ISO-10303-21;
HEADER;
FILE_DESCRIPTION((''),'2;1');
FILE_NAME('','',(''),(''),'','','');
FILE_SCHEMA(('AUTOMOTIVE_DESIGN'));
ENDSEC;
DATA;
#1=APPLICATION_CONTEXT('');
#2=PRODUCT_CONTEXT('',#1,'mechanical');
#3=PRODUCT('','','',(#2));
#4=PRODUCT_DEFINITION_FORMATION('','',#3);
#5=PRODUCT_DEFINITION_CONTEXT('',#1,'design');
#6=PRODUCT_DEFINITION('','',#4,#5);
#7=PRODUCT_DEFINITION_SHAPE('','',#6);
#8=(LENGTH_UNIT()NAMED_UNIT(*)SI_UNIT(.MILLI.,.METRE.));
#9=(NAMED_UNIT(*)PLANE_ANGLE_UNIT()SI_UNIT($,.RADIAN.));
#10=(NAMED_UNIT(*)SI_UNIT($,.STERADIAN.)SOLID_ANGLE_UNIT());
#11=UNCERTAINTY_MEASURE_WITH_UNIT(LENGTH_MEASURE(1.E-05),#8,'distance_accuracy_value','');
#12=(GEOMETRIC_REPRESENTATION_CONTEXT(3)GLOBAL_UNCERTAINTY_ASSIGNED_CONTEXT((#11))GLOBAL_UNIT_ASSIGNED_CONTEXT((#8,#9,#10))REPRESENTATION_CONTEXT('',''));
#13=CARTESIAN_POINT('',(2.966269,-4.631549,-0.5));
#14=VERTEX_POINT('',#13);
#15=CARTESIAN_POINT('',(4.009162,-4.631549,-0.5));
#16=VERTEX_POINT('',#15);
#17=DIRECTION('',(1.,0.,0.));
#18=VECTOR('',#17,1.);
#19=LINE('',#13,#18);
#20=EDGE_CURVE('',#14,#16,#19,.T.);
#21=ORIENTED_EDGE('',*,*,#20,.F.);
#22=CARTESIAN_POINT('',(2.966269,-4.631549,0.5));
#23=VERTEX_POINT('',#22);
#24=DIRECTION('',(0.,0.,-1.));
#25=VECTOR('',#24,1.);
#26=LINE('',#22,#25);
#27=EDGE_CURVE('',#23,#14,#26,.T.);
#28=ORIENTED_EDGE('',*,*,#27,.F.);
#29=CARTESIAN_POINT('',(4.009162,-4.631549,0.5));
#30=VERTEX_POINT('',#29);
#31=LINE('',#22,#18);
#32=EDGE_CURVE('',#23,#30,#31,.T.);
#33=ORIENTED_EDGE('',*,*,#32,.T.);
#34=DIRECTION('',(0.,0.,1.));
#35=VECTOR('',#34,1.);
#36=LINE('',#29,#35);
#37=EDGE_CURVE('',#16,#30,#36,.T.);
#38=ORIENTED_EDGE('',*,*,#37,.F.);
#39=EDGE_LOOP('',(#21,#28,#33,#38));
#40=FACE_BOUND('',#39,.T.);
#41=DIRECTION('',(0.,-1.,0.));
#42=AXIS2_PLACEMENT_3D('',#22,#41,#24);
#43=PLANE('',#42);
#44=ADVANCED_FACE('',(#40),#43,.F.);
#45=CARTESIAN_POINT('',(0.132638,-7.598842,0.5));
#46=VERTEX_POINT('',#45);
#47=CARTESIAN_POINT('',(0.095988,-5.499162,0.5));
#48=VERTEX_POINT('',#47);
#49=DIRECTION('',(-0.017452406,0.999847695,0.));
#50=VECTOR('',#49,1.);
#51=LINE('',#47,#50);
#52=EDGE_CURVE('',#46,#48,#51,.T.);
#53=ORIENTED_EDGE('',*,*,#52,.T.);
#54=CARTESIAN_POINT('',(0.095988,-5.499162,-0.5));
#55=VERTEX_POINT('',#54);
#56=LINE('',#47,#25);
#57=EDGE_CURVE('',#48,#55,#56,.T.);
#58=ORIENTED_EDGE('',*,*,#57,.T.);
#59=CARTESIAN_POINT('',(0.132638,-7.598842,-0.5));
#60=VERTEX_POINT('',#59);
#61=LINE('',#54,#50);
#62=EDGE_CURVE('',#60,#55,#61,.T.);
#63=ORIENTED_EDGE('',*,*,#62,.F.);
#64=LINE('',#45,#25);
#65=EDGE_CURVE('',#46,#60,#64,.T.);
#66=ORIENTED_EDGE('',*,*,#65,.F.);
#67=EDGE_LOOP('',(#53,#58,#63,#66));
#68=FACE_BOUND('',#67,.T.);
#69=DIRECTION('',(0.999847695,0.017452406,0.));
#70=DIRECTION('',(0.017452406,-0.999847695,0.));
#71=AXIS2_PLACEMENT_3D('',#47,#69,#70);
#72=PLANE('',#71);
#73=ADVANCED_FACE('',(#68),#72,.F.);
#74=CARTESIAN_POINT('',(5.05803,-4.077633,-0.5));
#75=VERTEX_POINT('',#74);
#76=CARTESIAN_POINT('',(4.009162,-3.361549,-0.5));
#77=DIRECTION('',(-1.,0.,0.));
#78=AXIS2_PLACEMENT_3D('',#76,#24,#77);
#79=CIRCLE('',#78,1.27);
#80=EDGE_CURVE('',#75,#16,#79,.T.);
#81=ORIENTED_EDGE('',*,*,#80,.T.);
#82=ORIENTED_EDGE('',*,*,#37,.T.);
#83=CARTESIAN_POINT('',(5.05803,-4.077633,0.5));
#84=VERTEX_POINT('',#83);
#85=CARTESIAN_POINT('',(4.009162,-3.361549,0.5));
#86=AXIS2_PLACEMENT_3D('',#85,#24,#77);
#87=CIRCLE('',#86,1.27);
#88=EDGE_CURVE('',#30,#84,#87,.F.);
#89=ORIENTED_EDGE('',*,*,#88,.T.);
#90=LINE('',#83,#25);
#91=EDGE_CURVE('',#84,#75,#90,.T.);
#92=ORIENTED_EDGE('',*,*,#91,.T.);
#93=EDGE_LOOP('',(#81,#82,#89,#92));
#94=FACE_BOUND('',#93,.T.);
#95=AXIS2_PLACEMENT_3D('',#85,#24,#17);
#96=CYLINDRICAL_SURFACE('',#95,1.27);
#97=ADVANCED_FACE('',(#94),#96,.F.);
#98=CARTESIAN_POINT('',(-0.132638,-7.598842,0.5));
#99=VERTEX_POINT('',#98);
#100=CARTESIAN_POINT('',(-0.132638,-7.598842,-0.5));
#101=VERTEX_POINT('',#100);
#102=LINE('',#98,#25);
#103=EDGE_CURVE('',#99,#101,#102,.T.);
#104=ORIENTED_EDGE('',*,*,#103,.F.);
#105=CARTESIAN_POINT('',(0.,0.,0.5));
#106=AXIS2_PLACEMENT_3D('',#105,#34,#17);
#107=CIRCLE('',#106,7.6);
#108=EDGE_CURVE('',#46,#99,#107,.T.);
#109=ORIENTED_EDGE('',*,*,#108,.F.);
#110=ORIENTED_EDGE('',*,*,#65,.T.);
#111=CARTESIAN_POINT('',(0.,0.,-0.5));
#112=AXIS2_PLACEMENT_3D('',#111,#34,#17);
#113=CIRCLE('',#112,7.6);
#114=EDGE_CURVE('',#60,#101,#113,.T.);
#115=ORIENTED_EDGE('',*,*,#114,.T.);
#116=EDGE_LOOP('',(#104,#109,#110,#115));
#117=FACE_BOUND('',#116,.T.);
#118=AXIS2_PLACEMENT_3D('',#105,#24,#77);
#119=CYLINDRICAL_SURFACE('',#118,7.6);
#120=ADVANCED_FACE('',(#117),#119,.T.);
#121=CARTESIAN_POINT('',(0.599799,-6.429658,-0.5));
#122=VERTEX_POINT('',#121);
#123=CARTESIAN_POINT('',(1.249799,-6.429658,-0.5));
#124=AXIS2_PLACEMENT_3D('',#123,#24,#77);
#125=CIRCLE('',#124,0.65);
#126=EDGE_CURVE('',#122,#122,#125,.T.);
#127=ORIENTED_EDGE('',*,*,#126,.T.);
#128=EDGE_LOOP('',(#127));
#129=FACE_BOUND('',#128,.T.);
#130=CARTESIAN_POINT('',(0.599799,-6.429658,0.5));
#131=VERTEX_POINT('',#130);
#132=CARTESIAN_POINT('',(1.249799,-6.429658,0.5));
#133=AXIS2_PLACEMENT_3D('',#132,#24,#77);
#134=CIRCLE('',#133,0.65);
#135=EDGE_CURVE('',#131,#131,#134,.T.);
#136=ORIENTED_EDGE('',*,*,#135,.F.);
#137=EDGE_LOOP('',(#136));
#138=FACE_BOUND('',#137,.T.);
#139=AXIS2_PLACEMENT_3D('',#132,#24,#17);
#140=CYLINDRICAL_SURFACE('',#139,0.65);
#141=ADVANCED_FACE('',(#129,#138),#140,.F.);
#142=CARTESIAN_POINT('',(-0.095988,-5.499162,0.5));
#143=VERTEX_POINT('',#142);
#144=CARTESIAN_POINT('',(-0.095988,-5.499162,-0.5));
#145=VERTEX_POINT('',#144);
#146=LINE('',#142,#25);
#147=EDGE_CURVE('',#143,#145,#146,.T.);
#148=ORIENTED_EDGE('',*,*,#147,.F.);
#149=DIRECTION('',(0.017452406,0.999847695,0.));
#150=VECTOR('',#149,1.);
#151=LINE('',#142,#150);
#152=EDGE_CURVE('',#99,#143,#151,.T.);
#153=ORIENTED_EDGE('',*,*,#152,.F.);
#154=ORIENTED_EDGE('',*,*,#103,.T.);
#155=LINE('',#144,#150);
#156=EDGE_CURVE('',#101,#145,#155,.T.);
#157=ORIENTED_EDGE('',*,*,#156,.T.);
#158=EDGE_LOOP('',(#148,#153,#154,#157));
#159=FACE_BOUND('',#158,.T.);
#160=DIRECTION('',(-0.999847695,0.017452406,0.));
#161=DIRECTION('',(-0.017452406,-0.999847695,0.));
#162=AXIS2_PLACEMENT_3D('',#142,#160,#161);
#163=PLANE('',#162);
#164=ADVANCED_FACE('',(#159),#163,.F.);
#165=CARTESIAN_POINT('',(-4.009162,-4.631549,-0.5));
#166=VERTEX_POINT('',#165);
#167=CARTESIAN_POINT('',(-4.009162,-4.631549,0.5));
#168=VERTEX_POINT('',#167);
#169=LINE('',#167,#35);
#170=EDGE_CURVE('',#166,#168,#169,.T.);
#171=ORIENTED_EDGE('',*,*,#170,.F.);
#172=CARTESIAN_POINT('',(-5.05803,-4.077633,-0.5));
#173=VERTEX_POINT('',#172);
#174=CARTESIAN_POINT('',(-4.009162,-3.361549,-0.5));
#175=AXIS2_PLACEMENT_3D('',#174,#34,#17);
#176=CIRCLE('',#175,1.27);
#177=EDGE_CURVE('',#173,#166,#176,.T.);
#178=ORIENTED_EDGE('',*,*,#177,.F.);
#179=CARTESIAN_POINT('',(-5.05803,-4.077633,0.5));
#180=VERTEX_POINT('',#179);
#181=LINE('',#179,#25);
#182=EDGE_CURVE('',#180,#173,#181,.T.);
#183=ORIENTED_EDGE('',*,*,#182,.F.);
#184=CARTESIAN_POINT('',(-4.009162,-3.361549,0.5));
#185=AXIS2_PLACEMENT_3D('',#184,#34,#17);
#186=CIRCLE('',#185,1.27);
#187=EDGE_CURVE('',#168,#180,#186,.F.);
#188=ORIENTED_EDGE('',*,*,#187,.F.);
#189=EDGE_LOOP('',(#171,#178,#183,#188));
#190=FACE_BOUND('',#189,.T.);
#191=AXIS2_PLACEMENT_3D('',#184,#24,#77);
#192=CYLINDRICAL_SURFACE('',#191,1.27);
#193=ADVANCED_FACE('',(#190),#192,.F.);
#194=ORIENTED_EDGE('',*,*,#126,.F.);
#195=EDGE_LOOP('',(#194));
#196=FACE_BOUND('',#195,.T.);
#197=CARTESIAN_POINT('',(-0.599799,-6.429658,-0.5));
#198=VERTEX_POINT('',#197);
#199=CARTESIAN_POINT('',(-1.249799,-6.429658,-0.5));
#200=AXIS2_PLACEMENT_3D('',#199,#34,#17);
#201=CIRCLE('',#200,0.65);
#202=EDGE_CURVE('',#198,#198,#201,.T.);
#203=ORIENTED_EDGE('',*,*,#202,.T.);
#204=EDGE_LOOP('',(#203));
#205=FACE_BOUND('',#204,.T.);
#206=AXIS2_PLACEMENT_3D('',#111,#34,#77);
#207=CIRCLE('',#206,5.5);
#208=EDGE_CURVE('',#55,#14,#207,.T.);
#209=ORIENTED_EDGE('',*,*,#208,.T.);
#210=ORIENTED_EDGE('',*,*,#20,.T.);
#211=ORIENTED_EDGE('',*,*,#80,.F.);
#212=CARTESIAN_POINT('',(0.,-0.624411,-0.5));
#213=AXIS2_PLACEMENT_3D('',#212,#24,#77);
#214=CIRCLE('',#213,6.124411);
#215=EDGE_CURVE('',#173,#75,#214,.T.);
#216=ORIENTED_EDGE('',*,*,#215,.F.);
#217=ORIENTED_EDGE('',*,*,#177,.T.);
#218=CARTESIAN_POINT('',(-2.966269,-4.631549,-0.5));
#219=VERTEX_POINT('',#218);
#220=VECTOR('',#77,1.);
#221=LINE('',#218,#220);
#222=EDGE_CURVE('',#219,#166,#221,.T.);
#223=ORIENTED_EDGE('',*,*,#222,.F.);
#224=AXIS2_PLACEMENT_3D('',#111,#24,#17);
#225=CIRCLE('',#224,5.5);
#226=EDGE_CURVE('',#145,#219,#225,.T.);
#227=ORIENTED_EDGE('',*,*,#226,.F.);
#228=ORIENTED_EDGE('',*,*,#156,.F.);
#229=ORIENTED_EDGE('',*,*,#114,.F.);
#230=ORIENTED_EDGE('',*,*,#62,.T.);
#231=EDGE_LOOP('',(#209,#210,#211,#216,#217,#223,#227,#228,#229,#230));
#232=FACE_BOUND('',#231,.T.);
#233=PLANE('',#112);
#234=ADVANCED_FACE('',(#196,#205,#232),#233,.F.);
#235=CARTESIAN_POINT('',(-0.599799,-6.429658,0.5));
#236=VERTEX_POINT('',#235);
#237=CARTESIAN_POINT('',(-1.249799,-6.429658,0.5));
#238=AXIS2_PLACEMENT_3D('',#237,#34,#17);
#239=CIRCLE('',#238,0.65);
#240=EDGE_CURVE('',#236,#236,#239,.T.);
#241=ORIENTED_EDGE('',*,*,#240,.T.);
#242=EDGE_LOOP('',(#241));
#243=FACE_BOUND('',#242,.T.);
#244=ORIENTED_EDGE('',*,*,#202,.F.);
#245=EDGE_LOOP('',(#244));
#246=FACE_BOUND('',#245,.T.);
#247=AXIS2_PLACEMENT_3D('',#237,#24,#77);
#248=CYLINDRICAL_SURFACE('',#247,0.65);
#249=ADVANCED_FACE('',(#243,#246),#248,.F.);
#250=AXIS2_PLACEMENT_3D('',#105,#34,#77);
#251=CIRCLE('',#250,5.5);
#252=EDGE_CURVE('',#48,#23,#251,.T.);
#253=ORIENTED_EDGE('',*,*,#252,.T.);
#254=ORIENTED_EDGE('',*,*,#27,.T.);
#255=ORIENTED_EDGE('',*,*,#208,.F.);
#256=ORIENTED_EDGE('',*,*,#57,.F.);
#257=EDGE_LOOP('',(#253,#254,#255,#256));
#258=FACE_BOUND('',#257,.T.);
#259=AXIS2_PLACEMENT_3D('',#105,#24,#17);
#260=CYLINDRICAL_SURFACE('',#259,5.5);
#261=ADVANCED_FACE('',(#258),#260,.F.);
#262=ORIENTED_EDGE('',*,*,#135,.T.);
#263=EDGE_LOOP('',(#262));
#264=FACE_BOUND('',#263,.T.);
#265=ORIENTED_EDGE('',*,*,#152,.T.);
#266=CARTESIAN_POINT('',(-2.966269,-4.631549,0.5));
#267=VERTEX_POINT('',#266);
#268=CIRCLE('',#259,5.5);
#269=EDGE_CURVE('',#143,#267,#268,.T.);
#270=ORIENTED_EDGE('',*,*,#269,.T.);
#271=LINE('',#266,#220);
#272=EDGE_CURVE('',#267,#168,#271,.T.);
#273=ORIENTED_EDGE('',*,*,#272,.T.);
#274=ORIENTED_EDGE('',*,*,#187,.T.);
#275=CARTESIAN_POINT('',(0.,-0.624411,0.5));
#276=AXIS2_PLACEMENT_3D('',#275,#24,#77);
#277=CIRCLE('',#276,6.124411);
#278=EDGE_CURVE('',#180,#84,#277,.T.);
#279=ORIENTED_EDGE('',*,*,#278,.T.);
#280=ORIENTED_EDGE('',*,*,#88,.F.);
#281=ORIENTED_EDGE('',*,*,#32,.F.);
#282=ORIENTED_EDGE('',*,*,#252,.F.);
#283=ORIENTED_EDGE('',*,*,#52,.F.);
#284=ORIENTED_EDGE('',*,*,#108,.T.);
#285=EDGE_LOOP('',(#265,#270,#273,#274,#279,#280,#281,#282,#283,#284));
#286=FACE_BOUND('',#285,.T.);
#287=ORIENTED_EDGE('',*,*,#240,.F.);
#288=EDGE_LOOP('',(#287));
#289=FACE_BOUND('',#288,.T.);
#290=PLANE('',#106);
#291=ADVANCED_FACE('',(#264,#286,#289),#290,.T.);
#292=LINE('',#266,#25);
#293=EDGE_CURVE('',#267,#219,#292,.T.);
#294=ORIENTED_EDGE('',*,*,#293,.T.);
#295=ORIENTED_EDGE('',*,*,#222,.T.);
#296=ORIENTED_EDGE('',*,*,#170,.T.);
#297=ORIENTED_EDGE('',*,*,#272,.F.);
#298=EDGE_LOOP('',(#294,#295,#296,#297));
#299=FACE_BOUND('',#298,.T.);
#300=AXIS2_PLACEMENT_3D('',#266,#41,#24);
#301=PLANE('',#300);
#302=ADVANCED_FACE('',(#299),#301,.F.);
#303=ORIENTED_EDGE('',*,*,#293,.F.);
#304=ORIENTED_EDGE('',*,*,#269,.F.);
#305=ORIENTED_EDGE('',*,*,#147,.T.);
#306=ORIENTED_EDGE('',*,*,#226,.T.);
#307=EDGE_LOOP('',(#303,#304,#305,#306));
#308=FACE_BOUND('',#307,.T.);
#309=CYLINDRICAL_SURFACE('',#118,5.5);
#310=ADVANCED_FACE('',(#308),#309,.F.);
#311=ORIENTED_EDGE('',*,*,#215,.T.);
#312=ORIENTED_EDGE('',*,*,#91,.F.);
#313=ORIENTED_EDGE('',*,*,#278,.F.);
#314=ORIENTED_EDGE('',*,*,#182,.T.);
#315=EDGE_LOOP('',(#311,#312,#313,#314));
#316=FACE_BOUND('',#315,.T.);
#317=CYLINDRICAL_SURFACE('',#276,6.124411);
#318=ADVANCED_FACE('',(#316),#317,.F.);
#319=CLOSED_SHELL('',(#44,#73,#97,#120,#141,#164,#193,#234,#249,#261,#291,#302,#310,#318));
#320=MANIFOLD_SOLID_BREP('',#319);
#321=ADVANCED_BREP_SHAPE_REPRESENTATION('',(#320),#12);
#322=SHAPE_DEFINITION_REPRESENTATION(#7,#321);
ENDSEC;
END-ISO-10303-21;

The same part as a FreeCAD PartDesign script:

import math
import FreeCAD as App
import Part
import Sketcher

V = App.Vector
Q = App.Units.Quantity


def edges_at(feature, points):
    """Names of the edges that pass closest to the given points."""
    edges = feature.Shape.Edges
    near = lambda p: min(range(len(edges)), key=lambda i: edges[i].distToShape(Part.Vertex(*p))[0])
    return sorted({f"Edge{near(p) + 1}" for p in points})

doc = App.newDocument("Part")
params = doc.addObject("Spreadsheet::Sheet", "Params")
for row, (alias, value) in enumerate([
    ("sketch1_diameter", "1.3 mm"),
    ("sketch1_radius", "7.6 mm"),
    ("sketch1_radius2", "5.5 mm"),
    ("sketch1_height", "2.1 mm"),
    ("pad1_length", "1 mm"),
    ("fillet_radius", "1.27 mm"),
], start=1):
    params.set(f"A{row}", alias)
    params.set(f"B{row}", "=" + value)
    params.setAlias(f"B{row}", alias)

body = doc.addObject("PartDesign::Body", "Body")

sketch1 = doc.addObject("Sketcher::SketchObject", "Sketch")
body.addObject(sketch1)
sketch1.AttachmentSupport = (doc.XY_Plane, [""])
sketch1.MapMode = "FlatFace"
sketch1.addGeometry(Part.LineSegment(V(-3, -4.6, 0), V(-4.6, -4.6, 0)), False)
sketch1.addGeometry(Part.ArcOfCircle(Part.Circle(V(0, -0.6, 0), V(0, 0, 1), 6.1), math.radians(90), math.radians(221)), False)
sketch1.addGeometry(Part.LineSegment(V(0, 5.5, 0), V(0, 7.6, 0)), False)
sketch1.addGeometry(Part.ArcOfCircle(Part.Circle(V(0, 0, 0), V(0, 0, 1), 7.6), math.radians(90), math.radians(269)), False)
sketch1.addGeometry(Part.LineSegment(V(-0.1, -7.6, 0), V(-0.1, -5.5, 0)), False)
sketch1.addGeometry(Part.ArcOfCircle(Part.Circle(V(0, 0, 0), V(0, 0, 1), 5.5), math.radians(-123), math.radians(-91)), False)
sketch1.addGeometry(Part.Circle(V(-1.2, -6.4, 0), V(0, 0, 1), 0.7), False)
sketch1.addConstraint(Sketcher.Constraint("Coincident", 0, 2, 1, 2))
sketch1.addConstraint(Sketcher.Constraint("Coincident", 1, 1, 2, 1))
sketch1.addConstraint(Sketcher.Constraint("Coincident", 2, 2, 3, 1))
sketch1.addConstraint(Sketcher.Constraint("Coincident", 3, 2, 4, 1))
sketch1.addConstraint(Sketcher.Constraint("Coincident", 4, 2, 5, 2))
sketch1.addConstraint(Sketcher.Constraint("Coincident", 5, 1, 0, 1))
sketch1.addConstraint(Sketcher.Constraint("Horizontal", 0))
sketch1.addConstraint(Sketcher.Constraint("Vertical", 2))
sketch1.addConstraint(Sketcher.Constraint("Coincident", 3, 3, -1, 1))
sketch1.addConstraint(Sketcher.Constraint("Coincident", 5, 3, -1, 1))
sketch1.addConstraint(Sketcher.Constraint("PointOnObject", 1, 3, -2))
sketch1.addConstraint(Sketcher.Constraint("PointOnObject", 1, 1, -2))
sketch1.addConstraint(Sketcher.Constraint("Diameter", 6, 1.3))
sketch1.addConstraint(Sketcher.Constraint("Radius", 3, 7.6))
sketch1.addConstraint(Sketcher.Constraint("Radius", 5, 5.5))
sketch1.addConstraint(Sketcher.Constraint("Angle", 4, Q("89 deg")))
sketch1.addConstraint(Sketcher.Constraint("DistanceY", 2, 1, 2, 2, 2.1))
sketch1.addConstraint(Sketcher.Constraint("Radius", 1, 6.124411))
sketch1.addConstraint(Sketcher.Constraint("DistanceX", 0, 2, 0, 1, 1.665281))
sketch1.addConstraint(Sketcher.Constraint("DistanceX", 6, 3, -1, 1, 1.249799))
sketch1.addConstraint(Sketcher.Constraint("DistanceY", 6, 3, -1, 1, 6.429658))
sketch1.addConstraint(Sketcher.Constraint("DistanceX", 3, 2, -1, 1, 0.132638))
sketch1.setExpression("Constraints[12]", "Params.sketch1_diameter")
sketch1.setExpression("Constraints[13]", "Params.sketch1_radius")
sketch1.setExpression("Constraints[14]", "Params.sketch1_radius2")
sketch1.setExpression("Constraints[16]", "Params.sketch1_height")
pad1 = doc.addObject("PartDesign::Pad", "Pad")
body.addObject(pad1)
pad1.Profile = sketch1
pad1.setExpression("Length", "Params.pad1_length")
pad1.Midplane = True
doc.recompute()

fillet = doc.addObject("PartDesign::Fillet", "Fillet")
body.addObject(fillet)
fillet.Base = (pad1, edges_at(pad1, [(-4.632, -4.632, 0)]))
fillet.setExpression("Radius", "Params.fillet_radius")
body2 = doc.addObject("PartDesign::Body", "Body001")
doc.recompute()

body2.BaseFeature = body
doc.recompute()

mirroring = doc.addObject("Part::Mirroring", "Mirroring")
mirroring.Source = body
mirroring.Base = V(0, 0, 0)
mirroring.Normal = V(1, 0, 0)
body3 = doc.addObject("PartDesign::Body", "Body002")
body3.BaseFeature = mirroring
boolean = doc.addObject("PartDesign::Boolean", "Boolean")
body2.addObject(boolean)
boolean.Type = "Fuse"
boolean.addObjects([body3])
doc.recompute()
mirroring.Visibility = False

doc.recompute()
